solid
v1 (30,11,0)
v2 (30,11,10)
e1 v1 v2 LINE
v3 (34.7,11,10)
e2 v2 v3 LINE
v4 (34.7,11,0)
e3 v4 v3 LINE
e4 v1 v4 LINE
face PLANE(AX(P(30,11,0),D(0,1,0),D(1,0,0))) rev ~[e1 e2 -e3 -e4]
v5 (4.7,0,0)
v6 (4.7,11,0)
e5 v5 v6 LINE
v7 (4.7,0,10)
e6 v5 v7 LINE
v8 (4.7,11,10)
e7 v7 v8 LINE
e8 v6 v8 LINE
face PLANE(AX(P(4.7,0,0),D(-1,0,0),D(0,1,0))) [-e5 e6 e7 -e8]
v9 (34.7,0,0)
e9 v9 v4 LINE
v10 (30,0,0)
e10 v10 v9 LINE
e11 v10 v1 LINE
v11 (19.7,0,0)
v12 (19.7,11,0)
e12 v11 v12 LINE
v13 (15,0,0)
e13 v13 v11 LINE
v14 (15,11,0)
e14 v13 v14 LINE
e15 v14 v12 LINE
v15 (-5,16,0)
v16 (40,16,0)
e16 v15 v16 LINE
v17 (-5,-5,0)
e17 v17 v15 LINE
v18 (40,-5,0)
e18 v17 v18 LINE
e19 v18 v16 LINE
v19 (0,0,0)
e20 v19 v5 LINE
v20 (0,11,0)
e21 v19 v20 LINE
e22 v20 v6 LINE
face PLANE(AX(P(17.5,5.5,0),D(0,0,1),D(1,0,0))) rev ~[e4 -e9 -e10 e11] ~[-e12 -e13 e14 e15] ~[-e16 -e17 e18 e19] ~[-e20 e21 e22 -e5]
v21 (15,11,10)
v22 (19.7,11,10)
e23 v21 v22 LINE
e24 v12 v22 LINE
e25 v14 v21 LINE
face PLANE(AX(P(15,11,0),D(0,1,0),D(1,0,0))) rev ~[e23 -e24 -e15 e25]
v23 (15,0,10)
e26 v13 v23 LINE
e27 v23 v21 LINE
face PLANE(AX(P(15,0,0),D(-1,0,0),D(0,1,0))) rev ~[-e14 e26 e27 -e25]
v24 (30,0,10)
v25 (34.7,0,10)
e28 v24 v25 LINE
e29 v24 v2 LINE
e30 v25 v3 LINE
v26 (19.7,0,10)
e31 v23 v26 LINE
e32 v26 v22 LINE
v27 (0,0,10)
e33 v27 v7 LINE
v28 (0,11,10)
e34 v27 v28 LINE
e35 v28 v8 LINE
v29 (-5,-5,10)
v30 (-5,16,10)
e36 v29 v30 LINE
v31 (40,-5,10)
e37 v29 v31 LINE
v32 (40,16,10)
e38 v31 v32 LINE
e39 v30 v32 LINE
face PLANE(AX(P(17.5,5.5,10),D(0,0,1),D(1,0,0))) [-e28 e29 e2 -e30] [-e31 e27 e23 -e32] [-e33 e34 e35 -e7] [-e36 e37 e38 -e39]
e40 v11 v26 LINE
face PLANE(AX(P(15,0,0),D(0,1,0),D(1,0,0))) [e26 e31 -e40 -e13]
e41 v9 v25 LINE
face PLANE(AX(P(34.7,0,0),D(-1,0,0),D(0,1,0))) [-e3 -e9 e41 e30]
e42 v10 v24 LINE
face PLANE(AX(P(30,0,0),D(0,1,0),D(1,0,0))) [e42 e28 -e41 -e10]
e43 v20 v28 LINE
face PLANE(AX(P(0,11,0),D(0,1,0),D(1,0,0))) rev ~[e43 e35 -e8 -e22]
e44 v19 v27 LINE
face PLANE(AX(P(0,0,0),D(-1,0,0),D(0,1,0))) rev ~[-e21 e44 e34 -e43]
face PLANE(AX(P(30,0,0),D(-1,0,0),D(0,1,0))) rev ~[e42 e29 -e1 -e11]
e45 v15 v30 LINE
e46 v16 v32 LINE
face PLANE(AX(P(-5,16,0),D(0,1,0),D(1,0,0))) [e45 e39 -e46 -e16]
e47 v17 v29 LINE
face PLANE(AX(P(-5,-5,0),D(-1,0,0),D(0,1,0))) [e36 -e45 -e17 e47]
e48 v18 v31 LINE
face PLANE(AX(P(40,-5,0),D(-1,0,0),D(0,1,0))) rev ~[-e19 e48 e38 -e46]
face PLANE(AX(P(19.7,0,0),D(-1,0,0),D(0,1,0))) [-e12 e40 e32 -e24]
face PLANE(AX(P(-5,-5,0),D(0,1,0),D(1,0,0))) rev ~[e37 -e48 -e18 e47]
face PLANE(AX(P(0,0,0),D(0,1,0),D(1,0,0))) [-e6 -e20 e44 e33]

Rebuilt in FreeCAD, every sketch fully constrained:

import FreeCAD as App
import Part
import Sketcher

V = App.Vector
Q = App.Units.Quantity

doc = App.newDocument("Part")
body = doc.addObject("PartDesign::Body", "Body")

# Sketch on XY plane
sketch1 = body.newObject("Sketcher::SketchObject", "Sketch")
sketch1.AttachmentSupport = (doc.getObject("XY_Plane"), [""])
sketch1.MapMode = "FlatFace"
sketch1.addGeometry([
    Part.LineSegment(V(0, 11, 0), V(0, 0, 0)),
    Part.LineSegment(V(0, 0, 0), V(4.7, 0, 0)),
    Part.LineSegment(V(4.7, 0, 0), V(4.7, 11, 0)),
    Part.LineSegment(V(4.7, 11, 0), V(0, 11, 0)),
], False)
sketch1.addConstraint([
    Sketcher.Constraint("Coincident", 0, 2, 1, 1),
    Sketcher.Constraint("Coincident", 1, 2, 2, 1),
    Sketcher.Constraint("Coincident", 2, 2, 3, 1),
    Sketcher.Constraint("Coincident", 3, 2, 0, 1),
    Sketcher.Constraint("Vertical", 0),
    Sketcher.Constraint("Horizontal", 1),
    Sketcher.Constraint("Vertical", 2),
    Sketcher.Constraint("Horizontal", 3),
    Sketcher.Constraint("Coincident", 0, 2, -1, 1),
    Sketcher.Constraint("DistanceY", 0, 2, 0, 1, Q("11 mm")),
    Sketcher.Constraint("DistanceX", 1, 1, 1, 2, Q("4.7 mm")),
])
pad1 = body.newObject("PartDesign::Pad", "Pad")
pad1.Profile = sketch1
pad1.Length = 10
body2 = doc.addObject("PartDesign::Body", "Body001")

# Sketch on XY plane
sketch2 = body2.newObject("Sketcher::SketchObject", "Sketch001")
sketch2.AttachmentSupport = (doc.getObject("XY_Plane001"), [""])
sketch2.MapMode = "FlatFace"
sketch2.addGeometry([
    Part.LineSegment(V(15, 11, 0), V(15, 0, 0)),
    Part.LineSegment(V(15, 0, 0), V(19.7, 0, 0)),
    Part.LineSegment(V(19.7, 0, 0), V(19.7, 11, 0)),
    Part.LineSegment(V(19.7, 11, 0), V(15, 11, 0)),
], False)
sketch2.addConstraint([
    Sketcher.Constraint("Coincident", 0, 2, 1, 1),
    Sketcher.Constraint("Coincident", 1, 2, 2, 1),
    Sketcher.Constraint("Coincident", 2, 2, 3, 1),
    Sketcher.Constraint("Coincident", 3, 2, 0, 1),
    Sketcher.Constraint("Vertical", 0),
    Sketcher.Constraint("Horizontal", 1),
    Sketcher.Constraint("Vertical", 2),
    Sketcher.Constraint("Horizontal", 3),
    Sketcher.Constraint("PointOnObject", 0, 2, -1),
    Sketcher.Constraint("DistanceY", 0, 2, 0, 1, Q("11 mm")),
    Sketcher.Constraint("DistanceX", 1, 1, 1, 2, Q("4.7 mm")),
    Sketcher.Constraint("DistanceX", -1, 1, 0, 2, Q("15 mm")),
])
pad2 = body2.newObject("PartDesign::Pad", "Pad001")
pad2.Profile = sketch2
pad2.Length = 10
body3 = doc.addObject("PartDesign::Body", "Body002")

# Sketch on XY plane
sketch3 = body3.newObject("Sketcher::SketchObject", "Sketch002")
sketch3.AttachmentSupport = (doc.getObject("XY_Plane002"), [""])
sketch3.MapMode = "FlatFace"
sketch3.addGeometry([
    Part.LineSegment(V(30, 11, 0), V(30, 0, 0)),
    Part.LineSegment(V(30, 0, 0), V(34.7, 0, 0)),
    Part.LineSegment(V(34.7, 0, 0), V(34.7, 11, 0)),
    Part.LineSegment(V(34.7, 11, 0), V(30, 11, 0)),
], False)
sketch3.addConstraint([
    Sketcher.Constraint("Coincident", 0, 2, 1, 1),
    Sketcher.Constraint("Coincident", 1, 2, 2, 1),
    Sketcher.Constraint("Coincident", 2, 2, 3, 1),
    Sketcher.Constraint("Coincident", 3, 2, 0, 1),
    Sketcher.Constraint("Vertical", 0),
    Sketcher.Constraint("Horizontal", 1),
    Sketcher.Constraint("Vertical", 2),
    Sketcher.Constraint("Horizontal", 3),
    Sketcher.Constraint("PointOnObject", 0, 2, -1),
    Sketcher.Constraint("DistanceY", 0, 2, 0, 1, Q("11 mm")),
    Sketcher.Constraint("DistanceX", 1, 1, 1, 2, Q("4.7 mm")),
    Sketcher.Constraint("DistanceX", -1, 1, 0, 2, Q("30 mm")),
])
pad3 = body3.newObject("PartDesign::Pad", "Pad002")
pad3.Profile = sketch3
pad3.Length = 10
body4 = doc.addObject("PartDesign::Body", "Body003")

# Sketch on XY plane
sketch4 = body4.newObject("Sketcher::SketchObject", "Sketch003")
sketch4.AttachmentSupport = (doc.getObject("XY_Plane003"), [""])
sketch4.MapMode = "FlatFace"
sketch4.addGeometry([
    Part.LineSegment(V(-5, 16, 0), V(-5, -5, 0)),
    Part.LineSegment(V(-5, -5, 0), V(40, -5, 0)),
    Part.LineSegment(V(40, -5, 0), V(40, 16, 0)),
    Part.LineSegment(V(40, 16, 0), V(-5, 16, 0)),
], False)
sketch4.addConstraint([
    Sketcher.Constraint("Coincident", 0, 2, 1, 1),
    Sketcher.Constraint("Coincident", 1, 2, 2, 1),
    Sketcher.Constraint("Coincident", 2, 2, 3, 1),
    Sketcher.Constraint("Coincident", 3, 2, 0, 1),
    Sketcher.Constraint("Vertical", 0),
    Sketcher.Constraint("Horizontal", 1),
    Sketcher.Constraint("Vertical", 2),
    Sketcher.Constraint("Horizontal", 3),
    Sketcher.Constraint("DistanceX", 1, 1, 1, 2, Q("45 mm")),
    Sketcher.Constraint("DistanceY", 0, 2, 0, 1, Q("21 mm")),
    Sketcher.Constraint("DistanceX", 0, 2, -1, 1, Q("5 mm")),
    Sketcher.Constraint("DistanceY", 0, 2, -1, 1, Q("5 mm")),
])
pad4 = body4.newObject("PartDesign::Pad", "Pad003")
pad4.Profile = sketch4
pad4.Length = 10
doc.recompute()

boolean = body4.newObject("PartDesign::Boolean", "Boolean")
boolean.Type = "Cut"
boolean.addObjects([body3])
doc.recompute()

boolean2 = body4.newObject("PartDesign::Boolean", "Boolean001")
boolean2.Type = "Cut"
boolean2.addObjects([body2])
doc.recompute()

boolean3 = body4.newObject("PartDesign::Boolean", "Boolean002")
boolean3.Type = "Cut"
boolean3.addObjects([body])

doc.recompute()
